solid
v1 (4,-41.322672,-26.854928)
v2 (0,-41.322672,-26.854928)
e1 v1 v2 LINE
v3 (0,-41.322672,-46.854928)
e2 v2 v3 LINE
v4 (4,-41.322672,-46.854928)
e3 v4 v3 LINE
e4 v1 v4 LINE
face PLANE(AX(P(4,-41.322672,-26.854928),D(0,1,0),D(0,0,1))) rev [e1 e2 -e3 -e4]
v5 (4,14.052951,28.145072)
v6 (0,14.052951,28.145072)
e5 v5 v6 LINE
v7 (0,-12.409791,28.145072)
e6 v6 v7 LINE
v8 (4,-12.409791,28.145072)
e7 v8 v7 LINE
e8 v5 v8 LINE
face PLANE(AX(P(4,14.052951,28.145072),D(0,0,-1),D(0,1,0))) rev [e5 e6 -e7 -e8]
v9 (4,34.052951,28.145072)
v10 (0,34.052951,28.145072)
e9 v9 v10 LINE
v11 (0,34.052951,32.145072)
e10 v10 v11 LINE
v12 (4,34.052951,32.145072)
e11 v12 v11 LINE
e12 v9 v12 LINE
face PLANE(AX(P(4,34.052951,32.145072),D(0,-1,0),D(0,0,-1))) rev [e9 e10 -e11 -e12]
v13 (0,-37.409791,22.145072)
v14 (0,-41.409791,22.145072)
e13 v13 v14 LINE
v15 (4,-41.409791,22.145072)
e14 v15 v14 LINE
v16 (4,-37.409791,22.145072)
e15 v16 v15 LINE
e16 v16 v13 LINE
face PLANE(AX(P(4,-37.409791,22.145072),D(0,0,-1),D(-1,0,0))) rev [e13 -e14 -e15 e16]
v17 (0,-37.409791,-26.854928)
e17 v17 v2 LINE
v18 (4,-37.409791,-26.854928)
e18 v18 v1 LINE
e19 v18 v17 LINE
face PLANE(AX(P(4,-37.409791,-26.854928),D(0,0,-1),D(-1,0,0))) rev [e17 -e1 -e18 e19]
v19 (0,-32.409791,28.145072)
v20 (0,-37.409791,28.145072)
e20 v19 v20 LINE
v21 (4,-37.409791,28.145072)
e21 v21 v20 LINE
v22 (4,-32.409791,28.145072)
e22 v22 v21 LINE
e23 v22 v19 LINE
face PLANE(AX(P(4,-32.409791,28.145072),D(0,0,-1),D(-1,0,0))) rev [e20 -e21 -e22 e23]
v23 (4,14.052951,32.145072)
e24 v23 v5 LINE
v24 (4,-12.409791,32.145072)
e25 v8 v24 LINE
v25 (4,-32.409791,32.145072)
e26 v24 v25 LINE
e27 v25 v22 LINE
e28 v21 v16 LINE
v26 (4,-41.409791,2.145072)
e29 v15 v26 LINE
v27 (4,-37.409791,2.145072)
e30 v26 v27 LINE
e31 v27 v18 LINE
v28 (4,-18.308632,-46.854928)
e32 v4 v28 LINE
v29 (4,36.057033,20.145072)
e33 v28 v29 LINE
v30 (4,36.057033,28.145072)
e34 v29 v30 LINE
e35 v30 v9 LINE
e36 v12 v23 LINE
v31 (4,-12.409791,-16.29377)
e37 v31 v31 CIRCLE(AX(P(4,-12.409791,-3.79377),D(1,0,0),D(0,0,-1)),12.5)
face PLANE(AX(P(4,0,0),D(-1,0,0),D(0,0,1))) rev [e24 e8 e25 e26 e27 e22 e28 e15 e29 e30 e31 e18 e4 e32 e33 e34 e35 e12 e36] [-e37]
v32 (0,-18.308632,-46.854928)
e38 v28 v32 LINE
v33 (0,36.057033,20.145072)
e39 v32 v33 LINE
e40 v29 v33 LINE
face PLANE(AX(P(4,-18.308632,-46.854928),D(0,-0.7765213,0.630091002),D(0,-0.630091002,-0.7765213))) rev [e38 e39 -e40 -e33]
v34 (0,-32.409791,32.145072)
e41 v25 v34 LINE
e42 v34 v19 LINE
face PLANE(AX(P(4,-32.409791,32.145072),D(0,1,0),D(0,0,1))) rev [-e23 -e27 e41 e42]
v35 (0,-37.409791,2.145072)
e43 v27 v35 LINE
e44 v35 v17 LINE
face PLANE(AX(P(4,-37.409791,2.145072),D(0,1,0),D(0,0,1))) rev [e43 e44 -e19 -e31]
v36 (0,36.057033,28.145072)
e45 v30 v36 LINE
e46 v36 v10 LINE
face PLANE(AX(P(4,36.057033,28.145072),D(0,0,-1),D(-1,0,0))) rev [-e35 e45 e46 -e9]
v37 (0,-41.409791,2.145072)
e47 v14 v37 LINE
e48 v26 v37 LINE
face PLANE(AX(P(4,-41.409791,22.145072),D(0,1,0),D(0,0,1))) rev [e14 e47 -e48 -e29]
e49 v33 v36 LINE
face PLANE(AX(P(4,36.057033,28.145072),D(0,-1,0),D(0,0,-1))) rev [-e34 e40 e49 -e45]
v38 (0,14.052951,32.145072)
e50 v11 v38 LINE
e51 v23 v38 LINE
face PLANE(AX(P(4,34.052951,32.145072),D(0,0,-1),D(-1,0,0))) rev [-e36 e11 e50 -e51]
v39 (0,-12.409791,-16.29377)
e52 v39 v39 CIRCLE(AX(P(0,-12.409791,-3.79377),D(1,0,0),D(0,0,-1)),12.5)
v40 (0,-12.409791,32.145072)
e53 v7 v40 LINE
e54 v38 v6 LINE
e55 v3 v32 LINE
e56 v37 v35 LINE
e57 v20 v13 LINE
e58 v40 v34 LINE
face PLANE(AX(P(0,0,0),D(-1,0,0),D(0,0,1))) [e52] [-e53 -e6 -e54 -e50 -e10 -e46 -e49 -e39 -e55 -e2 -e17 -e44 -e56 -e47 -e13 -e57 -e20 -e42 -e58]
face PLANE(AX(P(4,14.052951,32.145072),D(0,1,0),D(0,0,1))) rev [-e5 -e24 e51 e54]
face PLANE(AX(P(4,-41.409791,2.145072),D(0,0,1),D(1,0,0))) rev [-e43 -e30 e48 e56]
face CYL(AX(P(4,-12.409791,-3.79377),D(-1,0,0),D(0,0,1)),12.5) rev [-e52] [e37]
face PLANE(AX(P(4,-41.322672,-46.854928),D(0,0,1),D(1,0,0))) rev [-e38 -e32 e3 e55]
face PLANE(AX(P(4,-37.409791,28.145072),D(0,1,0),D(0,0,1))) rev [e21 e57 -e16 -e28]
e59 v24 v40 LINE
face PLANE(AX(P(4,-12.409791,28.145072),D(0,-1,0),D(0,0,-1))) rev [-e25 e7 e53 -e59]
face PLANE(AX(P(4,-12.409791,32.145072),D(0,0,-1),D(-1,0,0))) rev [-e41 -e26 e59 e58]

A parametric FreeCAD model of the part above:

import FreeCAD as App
import Part
import Sketcher

doc = App.newDocument("Part")
params = doc.addObject("Spreadsheet::Sheet", "Params")
for row, (alias, value) in enumerate([
    ("sketch1_diameter", "25 mm"),
    ("sketch1_width", "20 mm"),
    ("sketch1_width2", "5 mm"),
    ("sketch1_width3", "4 mm"),
    ("sketch1_height", "6 mm"),
    ("pad1_length", "4 mm"),
], start=1):
    params.set(f"A{row}", alias)
    params.set(f"B{row}", "=" + value)
    params.setAlias(f"B{row}", alias)

body = doc.addObject("PartDesign::Body", "Body")

# Sketch on YZ plane
sketch1 = body.newObject("Sketcher::SketchObject", "Sketch")
sketch1.AttachmentSupport = (doc.getObject("YZ_Plane"), [""])
sketch1.MapMode = "FlatFace"
sketch1.addGeometry(Part.LineSegment(App.Vector(34.1, 32.1, 0), App.Vector(14.1, 32.1, 0)), False)
sketch1.addGeometry(Part.LineSegment(App.Vector(14.1, 32.1, 0), App.Vector(14.1, 28.1, 0)), False)
sketch1.addGeometry(Part.LineSegment(App.Vector(14.1, 28.1, 0), App.Vector(-12.4, 28.1, 0)), False)
sketch1.addGeometry(Part.LineSegment(App.Vector(-12.4, 28.1, 0), App.Vector(-12.4, 32.1, 0)), False)
sketch1.addGeometry(Part.LineSegment(App.Vector(-12.4, 32.1, 0), App.Vector(-32.4, 32.1, 0)), False)
sketch1.addGeometry(Part.LineSegment(App.Vector(-32.4, 32.1, 0), App.Vector(-32.4, 28.1, 0)), False)
sketch1.addGeometry(Part.LineSegment(App.Vector(-32.4, 28.1, 0), App.Vector(-37.4, 28.1, 0)), False)
sketch1.addGeometry(Part.LineSegment(App.Vector(-37.4, 28.1, 0), App.Vector(-37.4, 22.1, 0)), False)
sketch1.addGeometry(Part.LineSegment(App.Vector(-37.4, 22.1, 0), App.Vector(-41.4, 22.1, 0)), False)
sketch1.addGeometry(Part.LineSegment(App.Vector(-41.4, 22.1, 0), App.Vector(-41.4, 2.1, 0)), False)
sketch1.addGeometry(Part.LineSegment(App.Vector(-41.4, 2.1, 0), App.Vector(-37.4, 2.1, 0)), False)
sketch1.addGeometry(Part.LineSegment(App.Vector(-37.4, 2.1, 0), App.Vector(-37.4, -26.9, 0)), False)
sketch1.addGeometry(Part.LineSegment(App.Vector(-37.4, -26.9, 0), App.Vector(-41.3, -26.9, 0)), False)
sketch1.addGeometry(Part.LineSegment(App.Vector(-41.3, -26.9, 0), App.Vector(-41.3, -46.9, 0)), False)
sketch1.addGeometry(Part.LineSegment(App.Vector(-41.3, -46.9, 0), App.Vector(-18.3, -46.9, 0)), False)
sketch1.addGeometry(Part.LineSegment(App.Vector(-18.3, -46.9, 0), App.Vector(36.1, 20.1, 0)), False)
sketch1.addGeometry(Part.LineSegment(App.Vector(36.1, 20.1, 0), App.Vector(36.1, 28.1, 0)), False)
sketch1.addGeometry(Part.LineSegment(App.Vector(36.1, 28.1, 0), App.Vector(34.1, 28.1, 0)), False)
sketch1.addGeometry(Part.LineSegment(App.Vector(34.1, 28.1, 0), App.Vector(34.1, 32.1, 0)), False)
sketch1.addGeometry(Part.Circle(App.Vector(-12.4, -3.8, 0), App.Vector(0, 0, 1), 12.5), False)
sketch1.addConstraint(Sketcher.Constraint("Coincident", 0, 2, 1, 1))
sketch1.addConstraint(Sketcher.Constraint("Coincident", 1, 2, 2, 1))
sketch1.addConstraint(Sketcher.Constraint("Coincident", 2, 2, 3, 1))
sketch1.addConstraint(Sketcher.Constraint("Coincident", 3, 2, 4, 1))
sketch1.addConstraint(Sketcher.Constraint("Coincident", 4, 2, 5, 1))
sketch1.addConstraint(Sketcher.Constraint("Coincident", 5, 2, 6, 1))
sketch1.addConstraint(Sketcher.Constraint("Coincident", 6, 2, 7, 1))
sketch1.addConstraint(Sketcher.Constraint("Coincident", 7, 2, 8, 1))
sketch1.addConstraint(Sketcher.Constraint("Coincident", 8, 2, 9, 1))
sketch1.addConstraint(Sketcher.Constraint("Coincident", 9, 2, 10, 1))
sketch1.addConstraint(Sketcher.Constraint("Coincident", 10, 2, 11, 1))
sketch1.addConstraint(Sketcher.Constraint("Coincident", 11, 2, 12, 1))
sketch1.addConstraint(Sketcher.Constraint("Coincident", 12, 2, 13, 1))
sketch1.addConstraint(Sketcher.Constraint("Coincident", 13, 2, 14, 1))
sketch1.addConstraint(Sketcher.Constraint("Coincident", 14, 2, 15, 1))
sketch1.addConstraint(Sketcher.Constraint("Coincident", 15, 2, 16, 1))
sketch1.addConstraint(Sketcher.Constraint("Coincident", 16, 2, 17, 1))
sketch1.addConstraint(Sketcher.Constraint("Coincident", 17, 2, 18, 1))
sketch1.addConstraint(Sketcher.Constraint("Coincident", 18, 2, 0, 1))
sketch1.addConstraint(Sketcher.Constraint("Horizontal", 0))
sketch1.addConstraint(Sketcher.Constraint("Vertical", 1))
sketch1.addConstraint(Sketcher.Constraint("Horizontal", 2))
sketch1.addConstraint(Sketcher.Constraint("Vertical", 3))
sketch1.addConstraint(Sketcher.Constraint("Horizontal", 4))
sketch1.addConstraint(Sketcher.Constraint("Vertical", 5))
sketch1.addConstraint(Sketcher.Constraint("Horizontal", 6))
sketch1.addConstraint(Sketcher.Constraint("Vertical", 7))
sketch1.addConstraint(Sketcher.Constraint("Horizontal", 8))
sketch1.addConstraint(Sketcher.Constraint("Vertical", 9))
sketch1.addConstraint(Sketcher.Constraint("Horizontal", 10))
sketch1.addConstraint(Sketcher.Constraint("Vertical", 11))
sketch1.addConstraint(Sketcher.Constraint("Horizontal", 12))
sketch1.addConstraint(Sketcher.Constraint("Vertical", 13))
sketch1.addConstraint(Sketcher.Constraint("Horizontal", 14))
sketch1.addConstraint(Sketcher.Constraint("Vertical", 16))
sketch1.addConstraint(Sketcher.Constraint("Horizontal", 17))
sketch1.addConstraint(Sketcher.Constraint("Vertical", 18))
sketch1.addConstraint(Sketcher.Constraint("Horizontal", 0, 2, 3, 2))
sketch1.addConstraint(Sketcher.Constraint("Horizontal", 2, 2, 5, 2))
sketch1.addConstraint(Sketcher.Constraint("Horizontal", 6, 2, 16, 2))
sketch1.addConstraint(Sketcher.Constraint("Vertical", 19, 3, 2, 2))
sketch1.addConstraint(Sketcher.Constraint("Vertical", 7, 2, 10, 2))
sketch1.addConstraint(Sketcher.Constraint("Equal", 0, 4))
sketch1.addConstraint(Sketcher.Constraint("Equal", 10, 1))
sketch1.addConstraint(Sketcher.Constraint("Equal", 4, 9))
sketch1.addConstraint(Sketcher.Constraint("Equal", 9, 13))
sketch1.addConstraint(Sketcher.Constraint("Diameter", 19, 25.0))
sketch1.addConstraint(Sketcher.Constraint("DistanceX", 0, 2, 0, 1, 20.0))
sketch1.addConstraint(Sketcher.Constraint("DistanceX", 6, 2, 6, 1, 5.0))
sketch1.addConstraint(Sketcher.Constraint("DistanceX", 8, 2, 8, 1, 4.0))
sketch1.addConstraint(Sketcher.Constraint("DistanceY", 7, 2, 7, 1, 6.0))
sketch1.addConstraint(Sketcher.Constraint("DistanceY", 11, 2, 11, 1, 29.0))
sketch1.addConstraint(Sketcher.Constraint("DistanceY", 16, 1, 16, 2, 8.0))
sketch1.addConstraint(Sketcher.Constraint("DistanceX", 12, 2, 12, 1, 3.912881))
sketch1.addConstraint(Sketcher.Constraint("DistanceX", 14, 1, 14, 2, 23.01404))
sketch1.addConstraint(Sketcher.Constraint("DistanceX", 17, 2, 17, 1, 2.004082))
sketch1.addConstraint(Sketcher.Constraint("DistanceX", 2, 2, 2, 1, 26.462742))
sketch1.addConstraint(Sketcher.Constraint("DistanceX", 19, 3, -1, 1, 12.409791))
sketch1.addConstraint(Sketcher.Constraint("DistanceY", 19, 3, -1, 1, 3.79377))
sketch1.addConstraint(Sketcher.Constraint("DistanceY", -1, 1, 0, 2, 32.145072))
sketch1.setExpression("Constraints[46]", "Params.sketch1_diameter")
sketch1.setExpression("Constraints[47]", "Params.sketch1_width")
sketch1.setExpression("Constraints[48]", "Params.sketch1_width2")
sketch1.setExpression("Constraints[49]", "Params.sketch1_width3")
sketch1.setExpression("Constraints[50]", "Params.sketch1_height")
pad1 = body.newObject("PartDesign::Pad", "Pad")
pad1.Profile = sketch1
pad1.setExpression("Length", "Params.pad1_length")

doc.recompute()
